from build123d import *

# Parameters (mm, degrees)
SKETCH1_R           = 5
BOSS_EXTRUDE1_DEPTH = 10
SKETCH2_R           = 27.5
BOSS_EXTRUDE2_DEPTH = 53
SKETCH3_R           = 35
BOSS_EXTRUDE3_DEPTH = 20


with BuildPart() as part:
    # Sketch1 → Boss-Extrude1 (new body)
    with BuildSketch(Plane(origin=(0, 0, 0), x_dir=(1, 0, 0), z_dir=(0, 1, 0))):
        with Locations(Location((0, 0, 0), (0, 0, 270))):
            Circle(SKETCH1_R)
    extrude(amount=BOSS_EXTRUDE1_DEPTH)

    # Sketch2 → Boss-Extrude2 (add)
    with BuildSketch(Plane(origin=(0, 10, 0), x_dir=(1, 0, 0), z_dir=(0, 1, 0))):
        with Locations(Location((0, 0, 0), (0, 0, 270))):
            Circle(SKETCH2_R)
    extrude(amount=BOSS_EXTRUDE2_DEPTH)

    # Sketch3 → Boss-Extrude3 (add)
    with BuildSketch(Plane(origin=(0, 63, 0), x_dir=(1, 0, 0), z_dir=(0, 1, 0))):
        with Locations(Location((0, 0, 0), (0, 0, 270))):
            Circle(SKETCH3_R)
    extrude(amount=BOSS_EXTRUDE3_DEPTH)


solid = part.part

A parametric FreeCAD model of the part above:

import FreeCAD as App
import Part
import Sketcher

V = App.Vector

doc = App.newDocument("Part")
body = doc.addObject("PartDesign::Body", "Body")

# Sketch on XZ plane
sketch1 = body.newObject("Sketcher::SketchObject", "Sketch")
sketch1.AttachmentSupport = (doc.getObject("XZ_Plane"), [""])
sketch1.MapMode = "FlatFace"
sketch1.addGeometry(Part.Circle(V(0, 0, 0), V(0, 0, 1), 5), False)
sketch1.addConstraint(Sketcher.Constraint("Coincident", 0, 3, -1, 1))
sketch1.addConstraint(Sketcher.Constraint("Diameter", 0, 10.0))
pad1 = body.newObject("PartDesign::Pad", "Pad")
pad1.Profile = sketch1
pad1.Length = 10
pad1.Reversed = True

# Sketch on XZ plane
sketch2 = body.newObject("Sketcher::SketchObject", "Sketch001")
sketch2.AttachmentSupport = (doc.getObject("XZ_Plane"), [""])
sketch2.MapMode = "FlatFace"
sketch2.AttachmentOffset = App.Placement(V(0, 0, -10), App.Rotation())
sketch2.addGeometry(Part.Circle(V(0, 0, 0), V(0, 0, 1), 28), False)
sketch2.addConstraint(Sketcher.Constraint("Coincident", 0, 3, -1, 1))
sketch2.addConstraint(Sketcher.Constraint("Diameter", 0, 55.0))
pad2 = body.newObject("PartDesign::Pad", "Pad001")
pad2.Profile = sketch2
pad2.Length = 53
pad2.Reversed = True

# Sketch on XZ plane
sketch3 = body.newObject("Sketcher::SketchObject", "Sketch002")
sketch3.AttachmentSupport = (doc.getObject("XZ_Plane"), [""])
sketch3.MapMode = "FlatFace"
sketch3.AttachmentOffset = App.Placement(V(0, 0, -63), App.Rotation())
sketch3.addGeometry(Part.Circle(V(0, 0, 0), V(0, 0, 1), 35), False)
sketch3.addConstraint(Sketcher.Constraint("Coincident", 0, 3, -1, 1))
sketch3.addConstraint(Sketcher.Constraint("Diameter", 0, 70.0))
pad3 = body.newObject("PartDesign::Pad", "Pad002")
pad3.Profile = sketch3
pad3.Length = 20
pad3.Reversed = True

doc.recompute()
